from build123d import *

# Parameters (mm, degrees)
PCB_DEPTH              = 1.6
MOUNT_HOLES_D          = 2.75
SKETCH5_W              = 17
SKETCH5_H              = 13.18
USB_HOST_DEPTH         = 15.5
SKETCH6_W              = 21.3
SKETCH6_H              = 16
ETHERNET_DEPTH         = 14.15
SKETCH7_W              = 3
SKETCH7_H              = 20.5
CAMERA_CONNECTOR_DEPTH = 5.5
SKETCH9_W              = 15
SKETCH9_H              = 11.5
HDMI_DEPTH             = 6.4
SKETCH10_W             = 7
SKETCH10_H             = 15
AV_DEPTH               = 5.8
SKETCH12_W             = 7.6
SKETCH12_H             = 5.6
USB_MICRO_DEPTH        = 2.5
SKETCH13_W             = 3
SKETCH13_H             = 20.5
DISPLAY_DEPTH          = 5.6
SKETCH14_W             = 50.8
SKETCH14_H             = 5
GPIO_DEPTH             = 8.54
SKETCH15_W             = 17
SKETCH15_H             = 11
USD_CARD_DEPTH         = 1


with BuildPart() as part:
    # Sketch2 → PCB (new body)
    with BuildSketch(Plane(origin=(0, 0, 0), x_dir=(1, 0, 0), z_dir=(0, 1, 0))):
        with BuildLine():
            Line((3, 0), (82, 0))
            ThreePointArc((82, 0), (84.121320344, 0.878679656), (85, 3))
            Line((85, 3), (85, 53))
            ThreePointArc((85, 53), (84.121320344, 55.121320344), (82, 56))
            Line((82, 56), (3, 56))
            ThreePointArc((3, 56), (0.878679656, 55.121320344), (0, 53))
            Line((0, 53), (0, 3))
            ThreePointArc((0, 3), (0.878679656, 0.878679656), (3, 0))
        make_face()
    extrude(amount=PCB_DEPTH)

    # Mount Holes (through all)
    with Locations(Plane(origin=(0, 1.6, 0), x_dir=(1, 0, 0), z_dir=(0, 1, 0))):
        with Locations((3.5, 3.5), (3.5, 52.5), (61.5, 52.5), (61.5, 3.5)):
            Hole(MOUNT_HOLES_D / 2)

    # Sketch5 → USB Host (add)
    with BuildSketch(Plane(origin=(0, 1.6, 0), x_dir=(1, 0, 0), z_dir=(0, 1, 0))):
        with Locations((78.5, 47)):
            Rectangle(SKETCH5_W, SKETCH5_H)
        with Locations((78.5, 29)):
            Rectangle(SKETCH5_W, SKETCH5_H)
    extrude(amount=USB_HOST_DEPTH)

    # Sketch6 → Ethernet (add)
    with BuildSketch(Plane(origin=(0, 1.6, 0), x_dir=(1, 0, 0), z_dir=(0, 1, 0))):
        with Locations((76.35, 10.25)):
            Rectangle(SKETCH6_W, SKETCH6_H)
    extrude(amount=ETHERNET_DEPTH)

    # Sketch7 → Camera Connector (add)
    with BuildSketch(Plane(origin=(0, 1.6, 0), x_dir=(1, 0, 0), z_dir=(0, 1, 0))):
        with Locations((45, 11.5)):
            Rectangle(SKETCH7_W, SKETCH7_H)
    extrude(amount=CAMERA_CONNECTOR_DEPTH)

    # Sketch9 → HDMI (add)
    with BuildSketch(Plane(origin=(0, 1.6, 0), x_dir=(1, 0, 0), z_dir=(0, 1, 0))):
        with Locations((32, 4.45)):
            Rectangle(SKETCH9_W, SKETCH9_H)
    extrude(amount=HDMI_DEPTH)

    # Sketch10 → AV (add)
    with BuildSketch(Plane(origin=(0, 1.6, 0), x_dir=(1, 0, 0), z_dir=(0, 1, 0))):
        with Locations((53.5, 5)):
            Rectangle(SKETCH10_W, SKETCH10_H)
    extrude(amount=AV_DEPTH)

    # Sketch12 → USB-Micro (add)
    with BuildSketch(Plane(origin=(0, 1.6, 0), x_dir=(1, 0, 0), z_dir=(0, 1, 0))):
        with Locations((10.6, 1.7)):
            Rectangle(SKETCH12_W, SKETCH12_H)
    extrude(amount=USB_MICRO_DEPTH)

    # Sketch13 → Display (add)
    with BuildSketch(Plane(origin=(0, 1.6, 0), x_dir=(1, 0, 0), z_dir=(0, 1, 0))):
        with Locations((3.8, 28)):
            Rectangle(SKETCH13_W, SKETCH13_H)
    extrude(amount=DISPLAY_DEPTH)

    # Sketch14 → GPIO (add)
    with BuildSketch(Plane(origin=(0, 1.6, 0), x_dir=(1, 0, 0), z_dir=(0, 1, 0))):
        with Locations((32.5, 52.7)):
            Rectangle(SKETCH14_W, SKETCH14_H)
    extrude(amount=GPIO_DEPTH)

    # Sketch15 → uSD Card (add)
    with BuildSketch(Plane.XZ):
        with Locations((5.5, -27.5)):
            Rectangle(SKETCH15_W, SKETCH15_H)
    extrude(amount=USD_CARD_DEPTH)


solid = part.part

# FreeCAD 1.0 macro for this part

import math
import FreeCAD as App
import Part
import Sketcher
from FreeCAD import Vector

doc = App.newDocument("Part")
body = doc.addObject("PartDesign::Body", "Body")

# Sketch on XZ plane
sketch1 = body.newObject("Sketcher::SketchObject", "Sketch")
sketch1.AttachmentSupport = (doc.getObject("XZ_Plane"), [""])
sketch1.MapMode = "FlatFace"
sketch1.addGeometry(Part.LineSegment(Vector(3, 0, 0), Vector(82, 0, 0)), False)
sketch1.addGeometry(Part.ArcOfCircle(Part.Circle(Vector(82, -3, 0), Vector(0, 0, 1), 3), math.radians(0), math.radians(90)), False)
sketch1.addGeometry(Part.LineSegment(Vector(85, -3, 0), Vector(85, -53, 0)), False)
sketch1.addGeometry(Part.ArcOfCircle(Part.Circle(Vector(82, -53, 0), Vector(0, 0, 1), 3), math.radians(-90), math.radians(0)), False)
sketch1.addGeometry(Part.LineSegment(Vector(82, -56, 0), Vector(3, -56, 0)), False)
sketch1.addGeometry(Part.ArcOfCircle(Part.Circle(Vector(3, -53, 0), Vector(0, 0, 1), 3), math.radians(180), math.radians(270)), False)
sketch1.addGeometry(Part.LineSegment(Vector(0, -53, 0), Vector(0, -3, 0)), False)
sketch1.addGeometry(Part.ArcOfCircle(Part.Circle(Vector(3, -3, 0), Vector(0, 0, 1), 3), math.radians(90), math.radians(180)), False)
sketch1.addConstraint(Sketcher.Constraint("Tangent", 0, 2, 1, 2))
sketch1.addConstraint(Sketcher.Constraint("Tangent", 1, 1, 2, 1))
sketch1.addConstraint(Sketcher.Constraint("Tangent", 2, 2, 3, 2))
sketch1.addConstraint(Sketcher.Constraint("Tangent", 3, 1, 4, 1))
sketch1.addConstraint(Sketcher.Constraint("Tangent", 4, 2, 5, 2))
sketch1.addConstraint(Sketcher.Constraint("Tangent", 5, 1, 6, 1))
sketch1.addConstraint(Sketcher.Constraint("Tangent", 6, 2, 7, 2))
sketch1.addConstraint(Sketcher.Constraint("Tangent", 7, 1, 0, 1))
sketch1.addConstraint(Sketcher.Constraint("Horizontal", 0))
sketch1.addConstraint(Sketcher.Constraint("Vertical", 2))
sketch1.addConstraint(Sketcher.Constraint("Horizontal", 4))
sketch1.addConstraint(Sketcher.Constraint("Vertical", 6))
sketch1.addConstraint(Sketcher.Constraint("Equal", 1, 3))
sketch1.addConstraint(Sketcher.Constraint("Equal", 3, 5))
sketch1.addConstraint(Sketcher.Constraint("Equal", 5, 7))
sketch1.addConstraint(Sketcher.Constraint("PointOnObject", 0, 2, -1))
sketch1.addConstraint(Sketcher.Constraint("PointOnObject", 5, 1, -2))
sketch1.addConstraint(Sketcher.Constraint("Radius", 1, 3.0))
sketch1.addConstraint(Sketcher.Constraint("DistanceX", 0, 1, 0, 2, 79.0))
sketch1.addConstraint(Sketcher.Constraint("DistanceY", 2, 2, 2, 1, 50.0))
pad1 = body.newObject("PartDesign::Pad", "Pad")
pad1.Profile = sketch1
pad1.Length = 1.6
pad1.Reversed = True

# Sketch on XZ plane
sketch2 = body.newObject("Sketcher::SketchObject", "Sketch001")
sketch2.AttachmentSupport = (doc.getObject("XZ_Plane"), [""])
sketch2.MapMode = "FlatFace"
sketch2.AttachmentOffset = App.Placement(Vector(0, 0, -1.6), App.Rotation())
sketch2.addGeometry(Part.Circle(Vector(3.5, -3.5, 0), Vector(0, 0, 1), 1.4), False)
sketch2.addGeometry(Part.Circle(Vector(3.5, -52.5, 0), Vector(0, 0, 1), 1.4), False)
sketch2.addGeometry(Part.Circle(Vector(61.5, -52.5, 0), Vector(0, 0, 1), 1.4), False)
sketch2.addGeometry(Part.Circle(Vector(61.5, -3.5, 0), Vector(0, 0, 1), 1.4), False)
sketch2.addConstraint(Sketcher.Constraint("Equal", 0, 1))
sketch2.addConstraint(Sketcher.Constraint("Equal", 1, 2))
sketch2.addConstraint(Sketcher.Constraint("Equal", 2, 3))
sketch2.addConstraint(Sketcher.Constraint("Horizontal", 1, 3, 2, 3))
sketch2.addConstraint(Sketcher.Constraint("Horizontal", 0, 3, 3, 3))
sketch2.addConstraint(Sketcher.Constraint("Vertical", 0, 3, 1, 3))
sketch2.addConstraint(Sketcher.Constraint("Vertical", 2, 3, 3, 3))
sketch2.addConstraint(Sketcher.Constraint("Diameter", 0, 2.75))
sketch2.addConstraint(Sketcher.Constraint("DistanceY", 1, 3, 0, 3, 49.0))
sketch2.addConstraint(Sketcher.Constraint("DistanceX", 1, 3, 2, 3, 58.0))
sketch2.addConstraint(Sketcher.Constraint("DistanceX", -1, 1, 0, 3, 3.5))
sketch2.addConstraint(Sketcher.Constraint("DistanceY", 0, 3, -1, 1, 3.5))
doc.recompute()
hole = body.newObject("PartDesign::Hole", "Hole")
hole.Profile = sketch2
hole.ThreadType = "None"
hole.Diameter = 2.75
hole.DepthType = "ThroughAll"
hole.Reversed = True

# Sketch on XZ plane
sketch3 = body.newObject("Sketcher::SketchObject", "Sketch002")
sketch3.AttachmentSupport = (doc.getObject("XZ_Plane"), [""])
sketch3.MapMode = "FlatFace"
sketch3.AttachmentOffset = App.Placement(Vector(0, 0, -1.6), App.Rotation())
sketch3.addGeometry(Part.LineSegment(Vector(70, -54, 0), Vector(70, -40, 0)), False)
sketch3.addGeometry(Part.LineSegment(Vector(70, -40, 0), Vector(87, -40, 0)), False)
sketch3.addGeometry(Part.LineSegment(Vector(87, -40, 0), Vector(87, -54, 0)), False)
sketch3.addGeometry(Part.LineSegment(Vector(87, -54, 0), Vector(70, -54, 0)), False)
sketch3.addGeometry(Part.LineSegment(Vector(70, -36, 0), Vector(70, -22, 0)), False)
sketch3.addGeometry(Part.LineSegment(Vector(70, -22, 0), Vector(87, -22, 0)), False)
sketch3.addGeometry(Part.LineSegment(Vector(87, -22, 0), Vector(87, -36, 0)), False)
sketch3.addGeometry(Part.LineSegment(Vector(87, -36, 0), Vector(70, -36, 0)), False)
sketch3.addConstraint(Sketcher.Constraint("Coincident", 0, 2, 1, 1))
sketch3.addConstraint(Sketcher.Constraint("Coincident", 1, 2, 2, 1))
sketch3.addConstraint(Sketcher.Constraint("Coincident", 2, 2, 3, 1))
sketch3.addConstraint(Sketcher.Constraint("Coincident", 3, 2, 0, 1))
sketch3.addConstraint(Sketcher.Constraint("Coincident", 4, 2, 5, 1))
sketch3.addConstraint(Sketcher.Constraint("Coincident", 5, 2, 6, 1))
sketch3.addConstraint(Sketcher.Constraint("Coincident", 6, 2, 7, 1))
sketch3.addConstraint(Sketcher.Constraint("Coincident", 7, 2, 4, 1))
sketch3.addConstraint(Sketcher.Constraint("Vertical", 0))
sketch3.addConstraint(Sketcher.Constraint("Horizontal", 1))
sketch3.addConstraint(Sketcher.Constraint("Vertical", 2))
sketch3.addConstraint(Sketcher.Constraint("Horizontal", 3))
sketch3.addConstraint(Sketcher.Constraint("Vertical", 4))
sketch3.addConstraint(Sketcher.Constraint("Horizontal", 5))
sketch3.addConstraint(Sketcher.Constraint("Vertical", 6))
sketch3.addConstraint(Sketcher.Constraint("Horizontal", 7))
sketch3.addConstraint(Sketcher.Constraint("Vertical", 3, 2, 4, 2))
sketch3.addConstraint(Sketcher.Constraint("Vertical", 2, 2, 5, 2))
sketch3.addConstraint(Sketcher.Constraint("Equal", 2, 4))
sketch3.addConstraint(Sketcher.Constraint("DistanceX", 1, 1, 1, 2, 17.0))
sketch3.addConstraint(Sketcher.Constraint("DistanceX", -1, 1, 0, 2, 70.0))
sketch3.addConstraint(Sketcher.Constraint("DistanceY", 0, 2, 4, 2, 18.0))
sketch3.addConstraint(Sketcher.Constraint("DistanceY", 0, 1, 0, 2, 13.18))
sketch3.addConstraint(Sketcher.Constraint("DistanceY", 0, 2, -1, 1, 40.41))
pad2 = body.newObject("PartDesign::Pad", "Pad001")
pad2.Profile = sketch3
pad2.Length = 15.5
pad2.Reversed = True

# Sketch on XZ plane
sketch4 = body.newObject("Sketcher::SketchObject", "Sketch003")
sketch4.AttachmentSupport = (doc.getObject("XZ_Plane"), [""])
sketch4.MapMode = "FlatFace"
sketch4.AttachmentOffset = App.Placement(Vector(0, 0, -1.6), App.Rotation())
sketch4.addGeometry(Part.LineSegment(Vector(66, -18, 0), Vector(66, -2, 0)), False)
sketch4.addGeometry(Part.LineSegment(Vector(66, -2, 0), Vector(87, -2, 0)), False)
sketch4.addGeometry(Part.LineSegment(Vector(87, -2, 0), Vector(87, -18, 0)), False)
sketch4.addGeometry(Part.LineSegment(Vector(87, -18, 0), Vector(66, -18, 0)), False)
sketch4.addConstraint(Sketcher.Constraint("Coincident", 0, 2, 1, 1))
sketch4.addConstraint(Sketcher.Constraint("Coincident", 1, 2, 2, 1))
sketch4.addConstraint(Sketcher.Constraint("Coincident", 2, 2, 3, 1))
sketch4.addConstraint(Sketcher.Constraint("Coincident", 3, 2, 0, 1))
sketch4.addConstraint(Sketcher.Constraint("Vertical", 0))
sketch4.addConstraint(Sketcher.Constraint("Horizontal", 1))
sketch4.addConstraint(Sketcher.Constraint("Vertical", 2))
sketch4.addConstraint(Sketcher.Constraint("Horizontal", 3))
sketch4.addConstraint(Sketcher.Constraint("DistanceY", 0, 1, 0, 2, 16.0))
sketch4.addConstraint(Sketcher.Constraint("DistanceX", 1, 1, 1, 2, 21.3))
sketch4.addConstraint(Sketcher.Constraint("DistanceX", -1, 1, 1, 2, 87.0))
sketch4.addConstraint(Sketcher.Constraint("DistanceY", 0, 2, -1, 1, 2.25))
pad3 = body.newObject("PartDesign::Pad", "Pad002")
pad3.Profile = sketch4
pad3.Length = 14.15
pad3.Reversed = True

# Sketch on XZ plane
sketch5 = body.newObject("Sketcher::SketchObject", "Sketch004")
sketch5.AttachmentSupport = (doc.getObject("XZ_Plane"), [""])
sketch5.MapMode = "FlatFace"
sketch5.AttachmentOffset = App.Placement(Vector(0, 0, -1.6), App.Rotation())
sketch5.addGeometry(Part.LineSegment(Vector(43.5, -21.8, 0), Vector(43.5, -1.2, 0)), False)
sketch5.addGeometry(Part.LineSegment(Vector(43.5, -1.2, 0), Vector(46.5, -1.2, 0)), False)
sketch5.addGeometry(Part.LineSegment(Vector(46.5, -1.2, 0), Vector(46.5, -21.8, 0)), False)
sketch5.addGeometry(Part.LineSegment(Vector(46.5, -21.8, 0), Vector(43.5, -21.8, 0)), False)
sketch5.addConstraint(Sketcher.Constraint("Coincident", 0, 2, 1, 1))
sketch5.addConstraint(Sketcher.Constraint("Coincident", 1, 2, 2, 1))
sketch5.addConstraint(Sketcher.Constraint("Coincident", 2, 2, 3, 1))
sketch5.addConstraint(Sketcher.Constraint("Coincident", 3, 2, 0, 1))
sketch5.addConstraint(Sketcher.Constraint("Vertical", 0))
sketch5.addConstraint(Sketcher.Constraint("Horizontal", 1))
sketch5.addConstraint(Sketcher.Constraint("Vertical", 2))
sketch5.addConstraint(Sketcher.Constraint("Horizontal", 3))
sketch5.addConstraint(Sketcher.Constraint("DistanceX", 1, 1, 1, 2, 3.0))
sketch5.addConstraint(Sketcher.Constraint("DistanceY", 0, 1, 0, 2, 20.5))
sketch5.addConstraint(Sketcher.Constraint("DistanceX", -1, 1, 0, 2, 43.5))
sketch5.addConstraint(Sketcher.Constraint("DistanceY", 0, 2, -1, 1, 1.25))
pad4 = body.newObject("PartDesign::Pad", "Pad003")
pad4.Profile = sketch5
pad4.Length = 5.5
pad4.Reversed = True

# Sketch on XZ plane
sketch6 = body.newObject("Sketcher::SketchObject", "Sketch005")
sketch6.AttachmentSupport = (doc.getObject("XZ_Plane"), [""])
sketch6.MapMode = "FlatFace"
sketch6.AttachmentOffset = App.Placement(Vector(0, 0, -1.6), App.Rotation())
sketch6.addGeometry(Part.LineSegment(Vector(24, -10, 0), Vector(24, 1, 0)), False)
sketch6.addGeometry(Part.LineSegment(Vector(24, 1, 0), Vector(40, 1, 0)), False)
sketch6.addGeometry(Part.LineSegment(Vector(40, 1, 0), Vector(40, -10, 0)), False)
sketch6.addGeometry(Part.LineSegment(Vector(40, -10, 0), Vector(24, -10, 0)), False)
sketch6.addConstraint(Sketcher.Constraint("Coincident", 0, 2, 1, 1))
sketch6.addConstraint(Sketcher.Constraint("Coincident", 1, 2, 2, 1))
sketch6.addConstraint(Sketcher.Constraint("Coincident", 2, 2, 3, 1))
sketch6.addConstraint(Sketcher.Constraint("Coincident", 3, 2, 0, 1))
sketch6.addConstraint(Sketcher.Constraint("Vertical", 0))
sketch6.addConstraint(Sketcher.Constraint("Horizontal", 1))
sketch6.addConstraint(Sketcher.Constraint("Vertical", 2))
sketch6.addConstraint(Sketcher.Constraint("Horizontal", 3))
sketch6.addConstraint(Sketcher.Constraint("DistanceX", 1, 1, 1, 2, 15.0))
sketch6.addConstraint(Sketcher.Constraint("DistanceY", 0, 1, 0, 2, 11.5))
sketch6.addConstraint(Sketcher.Constraint("DistanceX", -1, 1, 0, 2, 24.5))
sketch6.addConstraint(Sketcher.Constraint("DistanceY", -1, 1, 0, 2, 1.3))
pad5 = body.newObject("PartDesign::Pad", "Pad004")
pad5.Profile = sketch6
pad5.Length = 6.4
pad5.Reversed = True

# Sketch on XZ plane
sketch7 = body.newObject("Sketcher::SketchObject", "Sketch006")
sketch7.AttachmentSupport = (doc.getObject("XZ_Plane"), [""])
sketch7.MapMode = "FlatFace"
sketch7.AttachmentOffset = App.Placement(Vector(0, 0, -1.6), App.Rotation())
sketch7.addGeometry(Part.LineSegment(Vector(50, -12, 0), Vector(50, 2, 0)), False)
sketch7.addGeometry(Part.LineSegment(Vector(50, 2, 0), Vector(57, 2, 0)), False)
sketch7.addGeometry(Part.LineSegment(Vector(57, 2, 0), Vector(57, -12, 0)), False)
sketch7.addGeometry(Part.LineSegment(Vector(57, -12, 0), Vector(50, -12, 0)), False)
sketch7.addConstraint(Sketcher.Constraint("Coincident", 0, 2, 1, 1))
sketch7.addConstraint(Sketcher.Constraint("Coincident", 1, 2, 2, 1))
sketch7.addConstraint(Sketcher.Constraint("Coincident", 2, 2, 3, 1))
sketch7.addConstraint(Sketcher.Constraint("Coincident", 3, 2, 0, 1))
sketch7.addConstraint(Sketcher.Constraint("Vertical", 0))
sketch7.addConstraint(Sketcher.Constraint("Horizontal", 1))
sketch7.addConstraint(Sketcher.Constraint("Vertical", 2))
sketch7.addConstraint(Sketcher.Constraint("Horizontal", 3))
sketch7.addConstraint(Sketcher.Constraint("DistanceX", 1, 1, 1, 2, 7.0))
sketch7.addConstraint(Sketcher.Constraint("DistanceY", 0, 1, 0, 2, 15.0))
sketch7.addConstraint(Sketcher.Constraint("DistanceX", -1, 1, 0, 2, 50.0))
sketch7.addConstraint(Sketcher.Constraint("DistanceY", -1, 1, 0, 2, 2.5))
pad6 = body.newObject("PartDesign::Pad", "Pad005")
pad6.Profile = sketch7
pad6.Length = 5.8
pad6.Reversed = True

# Sketch on XZ plane
sketch8 = body.newObject("Sketcher::SketchObject", "Sketch007")
sketch8.AttachmentSupport = (doc.getObject("XZ_Plane"), [""])
sketch8.MapMode = "FlatFace"
sketch8.AttachmentOffset = App.Placement(Vector(0, 0, -1.6), App.Rotation())
sketch8.addGeometry(Part.LineSegment(Vector(7, -4, 0), Vector(7, 1, 0)), False)
sketch8.addGeometry(Part.LineSegment(Vector(7, 1, 0), Vector(14, 1, 0)), False)
sketch8.addGeometry(Part.LineSegment(Vector(14, 1, 0), Vector(14, -4, 0)), False)
sketch8.addGeometry(Part.LineSegment(Vector(14, -4, 0), Vector(7, -4, 0)), False)
sketch8.addConstraint(Sketcher.Constraint("Coincident", 0, 2, 1, 1))
sketch8.addConstraint(Sketcher.Constraint("Coincident", 1, 2, 2, 1))
sketch8.addConstraint(Sketcher.Constraint("Coincident", 2, 2, 3, 1))
sketch8.addConstraint(Sketcher.Constraint("Coincident", 3, 2, 0, 1))
sketch8.addConstraint(Sketcher.Constraint("Vertical", 0))
sketch8.addConstraint(Sketcher.Constraint("Horizontal", 1))
sketch8.addConstraint(Sketcher.Constraint("Vertical", 2))
sketch8.addConstraint(Sketcher.Constraint("Horizontal", 3))
sketch8.addConstraint(Sketcher.Constraint("DistanceX", 1, 1, 1, 2, 7.6))
sketch8.addConstraint(Sketcher.Constraint("DistanceY", 0, 1, 0, 2, 5.6))
sketch8.addConstraint(Sketcher.Constraint("DistanceX", -1, 1, 0, 2, 6.8))
sketch8.addConstraint(Sketcher.Constraint("DistanceY", -1, 1, 0, 2, 1.1))
pad7 = body.newObject("PartDesign::Pad", "Pad006")
pad7.Profile = sketch8
pad7.Length = 2.5
pad7.Reversed = True

# Sketch on XZ plane
sketch9 = body.newObject("Sketcher::SketchObject", "Sketch008")
sketch9.AttachmentSupport = (doc.getObject("XZ_Plane"), [""])
sketch9.MapMode = "FlatFace"
sketch9.AttachmentOffset = App.Placement(Vector(0, 0, -1.6), App.Rotation())
sketch9.addGeometry(Part.LineSegment(Vector(2.3, -38.2, 0), Vector(2.3, -17.8, 0)), False)
sketch9.addGeometry(Part.LineSegment(Vector(2.3, -17.8, 0), Vector(5.3, -17.8, 0)), False)
sketch9.addGeometry(Part.LineSegment(Vector(5.3, -17.8, 0), Vector(5.3, -38.2, 0)), False)
sketch9.addGeometry(Part.LineSegment(Vector(5.3, -38.2, 0), Vector(2.3, -38.2, 0)), False)
sketch9.addConstraint(Sketcher.Constraint("Coincident", 0, 2, 1, 1))
sketch9.addConstraint(Sketcher.Constraint("Coincident", 1, 2, 2, 1))
sketch9.addConstraint(Sketcher.Constraint("Coincident", 2, 2, 3, 1))
sketch9.addConstraint(Sketcher.Constraint("Coincident", 3, 2, 0, 1))
sketch9.addConstraint(Sketcher.Constraint("Vertical", 0))
sketch9.addConstraint(Sketcher.Constraint("Horizontal", 1))
sketch9.addConstraint(Sketcher.Constraint("Vertical", 2))
sketch9.addConstraint(Sketcher.Constraint("Horizontal", 3))
sketch9.addConstraint(Sketcher.Constraint("DistanceX", 1, 1, 1, 2, 3.0))
sketch9.addConstraint(Sketcher.Constraint("DistanceY", 0, 1, 0, 2, 20.5))
sketch9.addConstraint(Sketcher.Constraint("DistanceX", -1, 1, 0, 2, 2.3))
sketch9.addConstraint(Sketcher.Constraint("DistanceY", 0, 2, -1, 1, 17.75))
pad8 = body.newObject("PartDesign::Pad", "Pad007")
pad8.Profile = sketch9
pad8.Length = 5.6
pad8.Reversed = True

# Sketch on XZ plane
sketch10 = body.newObject("Sketcher::SketchObject", "Sketch009")
sketch10.AttachmentSupport = (doc.getObject("XZ_Plane"), [""])
sketch10.MapMode = "FlatFace"
sketch10.AttachmentOffset = App.Placement(Vector(0, 0, -1.6), App.Rotation())
sketch10.addGeometry(Part.LineSegment(Vector(7, -55, 0), Vector(7, -50, 0)), False)
sketch10.addGeometry(Part.LineSegment(Vector(7, -50, 0), Vector(58, -50, 0)), False)
sketch10.addGeometry(Part.LineSegment(Vector(58, -50, 0), Vector(58, -55, 0)), False)
sketch10.addGeometry(Part.LineSegment(Vector(58, -55, 0), Vector(7, -55, 0)), False)
sketch10.addConstraint(Sketcher.Constraint("Coincident", 0, 2, 1, 1))
sketch10.addConstraint(Sketcher.Constraint("Coincident", 1, 2, 2, 1))
sketch10.addConstraint(Sketcher.Constraint("Coincident", 2, 2, 3, 1))
sketch10.addConstraint(Sketcher.Constraint("Coincident", 3, 2, 0, 1))
sketch10.addConstraint(Sketcher.Constraint("Vertical", 0))
sketch10.addConstraint(Sketcher.Constraint("Horizontal", 1))
sketch10.addConstraint(Sketcher.Constraint("Vertical", 2))
sketch10.addConstraint(Sketcher.Constraint("Horizontal", 3))
sketch10.addConstraint(Sketcher.Constraint("DistanceY", 0, 1, 0, 2, 5.0))
sketch10.addConstraint(Sketcher.Constraint("DistanceX", 1, 1, 1, 2, 50.8))
sketch10.addConstraint(Sketcher.Constraint("DistanceX", -1, 1, 0, 2, 7.1))
sketch10.addConstraint(Sketcher.Constraint("DistanceY", 0, 2, -1, 1, 50.2))
pad9 = body.newObject("PartDesign::Pad", "Pad008")
pad9.Profile = sketch10
pad9.Length = 8.54
pad9.Reversed = True

# Sketch on XZ plane
sketch11 = body.newObject("Sketcher::SketchObject", "Sketch010")
sketch11.AttachmentSupport = (doc.getObject("XZ_Plane"), [""])
sketch11.MapMode = "FlatFace"
sketch11.addGeometry(Part.LineSegment(Vector(-3, -22, 0), Vector(-3, -33, 0)), False)
sketch11.addGeometry(Part.LineSegment(Vector(-3, -33, 0), Vector(14, -33, 0)), False)
sketch11.addGeometry(Part.LineSegment(Vector(14, -33, 0), Vector(14, -22, 0)), False)
sketch11.addGeometry(Part.LineSegment(Vector(14, -22, 0), Vector(-3, -22, 0)), False)
sketch11.addConstraint(Sketcher.Constraint("Coincident", 0, 2, 1, 1))
sketch11.addConstraint(Sketcher.Constraint("Coincident", 1, 2, 2, 1))
sketch11.addConstraint(Sketcher.Constraint("Coincident", 2, 2, 3, 1))
sketch11.addConstraint(Sketcher.Constraint("Coincident", 3, 2, 0, 1))
sketch11.addConstraint(Sketcher.Constraint("Vertical", 0))
sketch11.addConstraint(Sketcher.Constraint("Horizontal", 1))
sketch11.addConstraint(Sketcher.Constraint("Vertical", 2))
sketch11.addConstraint(Sketcher.Constraint("Horizontal", 3))
sketch11.addConstraint(Sketcher.Constraint("DistanceX", 1, 1, 1, 2, 17.0))
sketch11.addConstraint(Sketcher.Constraint("DistanceY", 0, 2, 0, 1, 11.0))
sketch11.addConstraint(Sketcher.Constraint("DistanceX", 0, 2, -1, 1, 3.0))
sketch11.addConstraint(Sketcher.Constraint("DistanceY", 0, 2, -1, 1, 33.0))
pad10 = body.newObject("PartDesign::Pad", "Pad009")
pad10.Profile = sketch11
pad10.Length = 1

doc.recompute()
